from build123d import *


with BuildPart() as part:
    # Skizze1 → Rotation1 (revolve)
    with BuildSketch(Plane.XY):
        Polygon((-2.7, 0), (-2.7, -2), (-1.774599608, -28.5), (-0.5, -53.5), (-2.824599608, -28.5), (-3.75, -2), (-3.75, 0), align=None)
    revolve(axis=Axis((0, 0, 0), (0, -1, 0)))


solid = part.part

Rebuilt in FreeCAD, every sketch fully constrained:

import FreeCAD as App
import Part
import Sketcher
from FreeCAD import Vector
Q = App.Units.Quantity


def add_polygon(sketch, points):
    """Adds a closed chain of lines whose ends are joined by coincident constraints."""
    first, n = sketch.GeometryCount, len(points)
    for a, b in zip(points, points[1:] + points[:1]):
        sketch.addGeometry(Part.LineSegment(App.Vector(*a, 0), App.Vector(*b, 0)), False)
    for i in range(n):
        sketch.addConstraint(Sketcher.Constraint("Coincident", first + i, 2, first + (i + 1) % n, 1))

doc = App.newDocument("Part")
params = doc.addObject("Spreadsheet::Sheet", "Params")
for row, (alias, value) in enumerate([
    ("sketch1_height", "2 mm"),
    ("sketch1_width", "1.05 mm"),
    ("revolution_angle", "360 deg"),
], start=1):
    params.set(f"A{row}", alias)
    params.set(f"B{row}", "=" + value)
    params.setAlias(f"B{row}", alias)

body = doc.addObject("PartDesign::Body", "Body")

sketch1 = doc.addObject("Sketcher::SketchObject", "Sketch")
body.addObject(sketch1)
sketch1.AttachmentSupport = (doc.XY_Plane, [""])
sketch1.MapMode = "FlatFace"
add_polygon(sketch1, [(-2.7, -2), (-2.7, 0), (-3.75, 0), (-3.75, -2), (-2.8246, -28.5), (-0.5, -53.5), (-1.7746, -28.5)])
sketch1.addConstraint(Sketcher.Constraint("Vertical", 0))
sketch1.addConstraint(Sketcher.Constraint("Horizontal", 1))
sketch1.addConstraint(Sketcher.Constraint("Vertical", 2))
sketch1.addConstraint(Sketcher.Constraint("PointOnObject", 0, 2, -1))
sketch1.addConstraint(Sketcher.Constraint("Parallel", 3, 6))
sketch1.addConstraint(Sketcher.Constraint("Horizontal", 3, 2, 5, 2))
sketch1.addConstraint(Sketcher.Constraint("Horizontal", 2, 2, 6, 2))
sketch1.addConstraint(Sketcher.Constraint("DistanceY", 0, 1, 0, 2, Q("2 mm")))
sketch1.addConstraint(Sketcher.Constraint("Angle", 3, Q("-88 deg")))
sketch1.addConstraint(Sketcher.Constraint("DistanceY", 4, 2, 3, 2, Q("25 mm")))
sketch1.addConstraint(Sketcher.Constraint("DistanceX", 1, 2, 1, 1, Q("1.05 mm")))
sketch1.addConstraint(Sketcher.Constraint("DistanceX", 0, 2, -1, 1, Q("2.7 mm")))
sketch1.addConstraint(Sketcher.Constraint("DistanceY", 3, 2, -1, 1, Q("28.5 mm")))
sketch1.addConstraint(Sketcher.Constraint("DistanceX", 4, 2, -1, 1, Q("0.5 mm")))
sketch1.setExpression("Constraints[14]", "Params.sketch1_height")
sketch1.setExpression("Constraints[17]", "Params.sketch1_width")
revolution = doc.addObject("PartDesign::Revolution", "Revolution")
body.addObject(revolution)
revolution.Profile = sketch1
revolution.ReferenceAxis = (sketch1, ["V_Axis"])
revolution.setExpression("Angle", "Params.revolution_angle")

doc.recompute()
